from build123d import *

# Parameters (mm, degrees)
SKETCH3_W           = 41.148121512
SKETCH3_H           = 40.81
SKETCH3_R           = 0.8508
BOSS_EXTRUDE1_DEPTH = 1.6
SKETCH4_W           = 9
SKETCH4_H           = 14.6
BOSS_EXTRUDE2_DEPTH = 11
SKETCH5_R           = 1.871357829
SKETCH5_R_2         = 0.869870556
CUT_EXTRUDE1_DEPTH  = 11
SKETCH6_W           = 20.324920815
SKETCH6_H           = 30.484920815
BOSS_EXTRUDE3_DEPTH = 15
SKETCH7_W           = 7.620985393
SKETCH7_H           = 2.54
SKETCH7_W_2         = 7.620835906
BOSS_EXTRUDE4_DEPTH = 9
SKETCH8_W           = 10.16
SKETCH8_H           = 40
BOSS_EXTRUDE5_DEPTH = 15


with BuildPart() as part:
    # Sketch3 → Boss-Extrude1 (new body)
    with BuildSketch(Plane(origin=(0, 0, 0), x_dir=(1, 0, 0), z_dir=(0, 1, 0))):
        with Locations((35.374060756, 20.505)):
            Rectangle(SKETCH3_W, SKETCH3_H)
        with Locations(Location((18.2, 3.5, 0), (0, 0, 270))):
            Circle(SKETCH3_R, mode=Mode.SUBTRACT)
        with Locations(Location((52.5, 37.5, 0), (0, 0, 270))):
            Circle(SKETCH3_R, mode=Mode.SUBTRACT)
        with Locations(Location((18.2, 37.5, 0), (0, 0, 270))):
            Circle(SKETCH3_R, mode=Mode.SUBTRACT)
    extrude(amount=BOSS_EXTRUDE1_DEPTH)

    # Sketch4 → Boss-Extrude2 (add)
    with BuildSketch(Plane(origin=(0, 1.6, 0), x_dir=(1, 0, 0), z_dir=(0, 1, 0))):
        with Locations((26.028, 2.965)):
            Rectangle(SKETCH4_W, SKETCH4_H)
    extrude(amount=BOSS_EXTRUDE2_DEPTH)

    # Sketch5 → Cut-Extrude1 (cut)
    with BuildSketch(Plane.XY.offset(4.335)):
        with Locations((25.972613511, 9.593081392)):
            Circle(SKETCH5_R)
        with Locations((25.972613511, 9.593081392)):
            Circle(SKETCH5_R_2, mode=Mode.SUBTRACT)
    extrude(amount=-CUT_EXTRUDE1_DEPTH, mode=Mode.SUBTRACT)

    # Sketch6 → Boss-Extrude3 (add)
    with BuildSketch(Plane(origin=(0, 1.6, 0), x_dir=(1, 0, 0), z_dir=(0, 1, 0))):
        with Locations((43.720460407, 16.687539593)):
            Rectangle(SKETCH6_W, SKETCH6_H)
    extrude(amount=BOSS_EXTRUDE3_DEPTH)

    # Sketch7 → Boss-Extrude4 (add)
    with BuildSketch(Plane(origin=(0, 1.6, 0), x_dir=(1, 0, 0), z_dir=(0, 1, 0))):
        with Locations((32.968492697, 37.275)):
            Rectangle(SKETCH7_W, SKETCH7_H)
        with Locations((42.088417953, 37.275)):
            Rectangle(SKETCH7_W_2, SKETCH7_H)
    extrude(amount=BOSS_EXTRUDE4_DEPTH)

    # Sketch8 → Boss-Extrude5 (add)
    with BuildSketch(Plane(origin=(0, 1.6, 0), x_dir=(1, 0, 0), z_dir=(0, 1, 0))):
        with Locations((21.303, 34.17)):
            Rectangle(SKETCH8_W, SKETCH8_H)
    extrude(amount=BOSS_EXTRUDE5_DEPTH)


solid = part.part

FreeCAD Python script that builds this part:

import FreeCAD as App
import Part
import Sketcher

doc = App.newDocument("Part")
params = doc.addObject("Spreadsheet::Sheet", "Params")
for row, (alias, value) in enumerate([
    ("sketch1_height", "40.81 mm"),
    ("pad1_length", "1.6 mm"),
    ("sketch2_width", "9 mm"),
    ("sketch2_height", "14.6 mm"),
    ("pad2_length", "11 mm"),
    ("pocket1_length", "11 mm"),
    ("pad3_length", "15 mm"),
    ("sketch5_height", "2.54 mm"),
    ("pad4_length", "9 mm"),
    ("sketch6_height", "40 mm"),
    ("sketch6_width", "10.16 mm"),
    ("pad5_length", "15 mm"),
], start=1):
    params.set(f"A{row}", alias)
    params.set(f"B{row}", "=" + value)
    params.setAlias(f"B{row}", alias)

body = doc.addObject("PartDesign::Body", "Body")

# Sketch on XZ plane
sketch1 = doc.addObject("Sketcher::SketchObject", "Sketch")
body.addObject(sketch1)
sketch1.AttachmentSupport = (doc.XZ_Plane, [""])
sketch1.MapMode = "FlatFace"
sketch1.addGeometry(Part.LineSegment(App.Vector(14.8, -40.9, 0), App.Vector(14.8, -0.1, 0)), False)
sketch1.addGeometry(Part.LineSegment(App.Vector(14.8, -0.1, 0), App.Vector(55.9, -0.1, 0)), False)
sketch1.addGeometry(Part.LineSegment(App.Vector(55.9, -0.1, 0), App.Vector(55.9, -40.9, 0)), False)
sketch1.addGeometry(Part.LineSegment(App.Vector(55.9, -40.9, 0), App.Vector(14.8, -40.9, 0)), False)
sketch1.addGeometry(Part.Circle(App.Vector(18.2, -3.5, 0), App.Vector(0, 0, 1), 0.9), False)
sketch1.addGeometry(Part.Circle(App.Vector(18.2, -37.5, 0), App.Vector(0, 0, 1), 0.9), False)
sketch1.addGeometry(Part.Circle(App.Vector(52.5, -37.5, 0), App.Vector(0, 0, 1), 0.9), False)
sketch1.addConstraint(Sketcher.Constraint("Coincident", 0, 2, 1, 1))
sketch1.addConstraint(Sketcher.Constraint("Coincident", 1, 2, 2, 1))
sketch1.addConstraint(Sketcher.Constraint("Coincident", 2, 2, 3, 1))
sketch1.addConstraint(Sketcher.Constraint("Coincident", 3, 2, 0, 1))
sketch1.addConstraint(Sketcher.Constraint("Vertical", 0))
sketch1.addConstraint(Sketcher.Constraint("Horizontal", 1))
sketch1.addConstraint(Sketcher.Constraint("Vertical", 2))
sketch1.addConstraint(Sketcher.Constraint("Horizontal", 3))
sketch1.addConstraint(Sketcher.Constraint("Equal", 4, 5))
sketch1.addConstraint(Sketcher.Constraint("Equal", 5, 6))
sketch1.addConstraint(Sketcher.Constraint("Horizontal", 5, 3, 6, 3))
sketch1.addConstraint(Sketcher.Constraint("Vertical", 4, 3, 5, 3))
sketch1.addConstraint(Sketcher.Constraint("DistanceY", 5, 3, 4, 3, 34.0))
sketch1.addConstraint(Sketcher.Constraint("Diameter", 4, 1.7016))
sketch1.addConstraint(Sketcher.Constraint("DistanceY", 0, 1, 0, 2, 40.81))
sketch1.addConstraint(Sketcher.Constraint("DistanceX", -1, 1, 4, 3, 18.2))
sketch1.addConstraint(Sketcher.Constraint("DistanceY", 4, 3, -1, 1, 3.5))
sketch1.addConstraint(Sketcher.Constraint("DistanceX", -1, 1, 6, 3, 52.5))
sketch1.addConstraint(Sketcher.Constraint("DistanceX", -1, 1, 0, 2, 14.8))
sketch1.addConstraint(Sketcher.Constraint("DistanceY", 0, 2, -1, 1, 0.1))
sketch1.addConstraint(Sketcher.Constraint("DistanceX", 1, 1, 1, 2, 41.148122))
sketch1.setExpression("Constraints[14]", "Params.sketch1_height")
pad1 = doc.addObject("PartDesign::Pad", "Pad")
body.addObject(pad1)
pad1.Profile = sketch1
pad1.setExpression("Length", "Params.pad1_length")
pad1.Reversed = True

# Sketch on XZ plane
sketch2 = doc.addObject("Sketcher::SketchObject", "Sketch001")
body.addObject(sketch2)
sketch2.AttachmentSupport = (doc.XZ_Plane, [""])
sketch2.MapMode = "FlatFace"
sketch2.AttachmentOffset = App.Placement(App.Vector(0, 0, -1.6), App.Rotation())
sketch2.addGeometry(Part.LineSegment(App.Vector(22, -10, 0), App.Vector(22, 4, 0)), False)
sketch2.addGeometry(Part.LineSegment(App.Vector(22, 4, 0), App.Vector(31, 4, 0)), False)
sketch2.addGeometry(Part.LineSegment(App.Vector(31, 4, 0), App.Vector(31, -10, 0)), False)
sketch2.addGeometry(Part.LineSegment(App.Vector(31, -10, 0), App.Vector(22, -10, 0)), False)
sketch2.addConstraint(Sketcher.Constraint("Coincident", 0, 2, 1, 1))
sketch2.addConstraint(Sketcher.Constraint("Coincident", 1, 2, 2, 1))
sketch2.addConstraint(Sketcher.Constraint("Coincident", 2, 2, 3, 1))
sketch2.addConstraint(Sketcher.Constraint("Coincident", 3, 2, 0, 1))
sketch2.addConstraint(Sketcher.Constraint("Vertical", 0))
sketch2.addConstraint(Sketcher.Constraint("Horizontal", 1))
sketch2.addConstraint(Sketcher.Constraint("Vertical", 2))
sketch2.addConstraint(Sketcher.Constraint("Horizontal", 3))
sketch2.addConstraint(Sketcher.Constraint("DistanceX", 1, 1, 1, 2, 9.0))
sketch2.addConstraint(Sketcher.Constraint("DistanceY", 0, 1, 0, 2, 14.6))
sketch2.addConstraint(Sketcher.Constraint("DistanceX", -1, 1, 0, 2, 21.528))
sketch2.addConstraint(Sketcher.Constraint("DistanceY", -1, 1, 0, 2, 4.335))
sketch2.setExpression("Constraints[8]", "Params.sketch2_width")
sketch2.setExpression("Constraints[9]", "Params.sketch2_height")
pad2 = doc.addObject("PartDesign::Pad", "Pad001")
body.addObject(pad2)
pad2.Profile = sketch2
pad2.setExpression("Length", "Params.pad2_length")
pad2.Reversed = True

# Sketch on XY plane
sketch3 = doc.addObject("Sketcher::SketchObject", "Sketch002")
body.addObject(sketch3)
sketch3.AttachmentSupport = (doc.XY_Plane, [""])
sketch3.MapMode = "FlatFace"
sketch3.AttachmentOffset = App.Placement(App.Vector(0, 0, 4.335), App.Rotation())
sketch3.addGeometry(Part.Circle(App.Vector(26, 9.6, 0), App.Vector(0, 0, 1), 1.9), False)
sketch3.addGeometry(Part.Circle(App.Vector(26, 9.6, 0), App.Vector(0, 0, 1), 0.9), False)
sketch3.addConstraint(Sketcher.Constraint("Coincident", 1, 3, 0, 3))
sketch3.addConstraint(Sketcher.Constraint("Diameter", 1, 1.739741))
sketch3.addConstraint(Sketcher.Constraint("Diameter", 0, 3.742716))
sketch3.addConstraint(Sketcher.Constraint("DistanceY", -1, 1, 0, 3, 9.593081))
sketch3.addConstraint(Sketcher.Constraint("DistanceX", -1, 1, 0, 3, 25.972614))
pocket1 = doc.addObject("PartDesign::Pocket", "Pocket")
body.addObject(pocket1)
pocket1.Profile = sketch3
pocket1.setExpression("Length", "Params.pocket1_length")

# Sketch on XZ plane
sketch4 = doc.addObject("Sketcher::SketchObject", "Sketch003")
body.addObject(sketch4)
sketch4.AttachmentSupport = (doc.XZ_Plane, [""])
sketch4.MapMode = "FlatFace"
sketch4.AttachmentOffset = App.Placement(App.Vector(0, 0, -1.6), App.Rotation())
sketch4.addGeometry(Part.LineSegment(App.Vector(34, -32, 0), App.Vector(34, -1, 0)), False)
sketch4.addGeometry(Part.LineSegment(App.Vector(34, -1, 0), App.Vector(54, -1, 0)), False)
sketch4.addGeometry(Part.LineSegment(App.Vector(54, -1, 0), App.Vector(54, -32, 0)), False)
sketch4.addGeometry(Part.LineSegment(App.Vector(54, -32, 0), App.Vector(34, -32, 0)), False)
sketch4.addConstraint(Sketcher.Constraint("Coincident", 0, 2, 1, 1))
sketch4.addConstraint(Sketcher.Constraint("Coincident", 1, 2, 2, 1))
sketch4.addConstraint(Sketcher.Constraint("Coincident", 2, 2, 3, 1))
sketch4.addConstraint(Sketcher.Constraint("Coincident", 3, 2, 0, 1))
sketch4.addConstraint(Sketcher.Constraint("Vertical", 0))
sketch4.addConstraint(Sketcher.Constraint("Horizontal", 1))
sketch4.addConstraint(Sketcher.Constraint("Vertical", 2))
sketch4.addConstraint(Sketcher.Constraint("Horizontal", 3))
sketch4.addConstraint(Sketcher.Constraint("DistanceY", 2, 2, -1, 1, 31.93))
sketch4.addConstraint(Sketcher.Constraint("DistanceX", -1, 1, 0, 2, 33.558))
sketch4.addConstraint(Sketcher.Constraint("DistanceX", 1, 1, 1, 2, 20.324921))
sketch4.addConstraint(Sketcher.Constraint("DistanceY", 0, 1, 0, 2, 30.484921))
pad3 = doc.addObject("PartDesign::Pad", "Pad002")
body.addObject(pad3)
pad3.Profile = sketch4
pad3.setExpression("Length", "Params.pad3_length")
pad3.Reversed = True

# Sketch on XZ plane
sketch5 = doc.addObject("Sketcher::SketchObject", "Sketch004")
body.addObject(sketch5)
sketch5.AttachmentSupport = (doc.XZ_Plane, [""])
sketch5.MapMode = "FlatFace"
sketch5.AttachmentOffset = App.Placement(App.Vector(0, 0, -1.6), App.Rotation())
sketch5.addGeometry(Part.LineSegment(App.Vector(29.2, -38.5, 0), App.Vector(29.2, -36, 0)), False)
sketch5.addGeometry(Part.LineSegment(App.Vector(29.2, -36, 0), App.Vector(36.8, -36, 0)), False)
sketch5.addGeometry(Part.LineSegment(App.Vector(36.8, -36, 0), App.Vector(36.8, -38.5, 0)), False)
sketch5.addGeometry(Part.LineSegment(App.Vector(36.8, -38.5, 0), App.Vector(29.2, -38.5, 0)), False)
sketch5.addGeometry(Part.LineSegment(App.Vector(38.3, -38.5, 0), App.Vector(38.3, -36, 0)), False)
sketch5.addGeometry(Part.LineSegment(App.Vector(38.3, -36, 0), App.Vector(45.9, -36, 0)), False)
sketch5.addGeometry(Part.LineSegment(App.Vector(45.9, -36, 0), App.Vector(45.9, -38.5, 0)), False)
sketch5.addGeometry(Part.LineSegment(App.Vector(45.9, -38.5, 0), App.Vector(38.3, -38.5, 0)), False)
sketch5.addConstraint(Sketcher.Constraint("Coincident", 0, 2, 1, 1))
sketch5.addConstraint(Sketcher.Constraint("Coincident", 1, 2, 2, 1))
sketch5.addConstraint(Sketcher.Constraint("Coincident", 2, 2, 3, 1))
sketch5.addConstraint(Sketcher.Constraint("Coincident", 3, 2, 0, 1))
sketch5.addConstraint(Sketcher.Constraint("Coincident", 4, 2, 5, 1))
sketch5.addConstraint(Sketcher.Constraint("Coincident", 5, 2, 6, 1))
sketch5.addConstraint(Sketcher.Constraint("Coincident", 6, 2, 7, 1))
sketch5.addConstraint(Sketcher.Constraint("Coincident", 7, 2, 4, 1))
sketch5.addConstraint(Sketcher.Constraint("Vertical", 0))
sketch5.addConstraint(Sketcher.Constraint("Horizontal", 1))
sketch5.addConstraint(Sketcher.Constraint("Vertical", 2))
sketch5.addConstraint(Sketcher.Constraint("Horizontal", 3))
sketch5.addConstraint(Sketcher.Constraint("Vertical", 4))
sketch5.addConstraint(Sketcher.Constraint("Horizontal", 5))
sketch5.addConstraint(Sketcher.Constraint("Vertical", 6))
sketch5.addConstraint(Sketcher.Constraint("Horizontal", 7))
sketch5.addConstraint(Sketcher.Constraint("Horizontal", 1, 2, 4, 2))
sketch5.addConstraint(Sketcher.Constraint("Horizontal", 3, 2, 6, 2))
sketch5.addConstraint(Sketcher.Constraint("DistanceY", 0, 1, 0, 2, 2.54))
sketch5.addConstraint(Sketcher.Constraint("DistanceX", 0, 2, 4, 2, 9.12))
sketch5.addConstraint(Sketcher.Constraint("DistanceX", -1, 1, 0, 2, 29.158))
sketch5.addConstraint(Sketcher.Constraint("DistanceY", 0, 2, -1, 1, 36.005))
sketch5.addConstraint(Sketcher.Constraint("DistanceX", 1, 1, 1, 2, 7.620985))
sketch5.addConstraint(Sketcher.Constraint("DistanceX", 5, 1, 5, 2, 7.620836))
sketch5.setExpression("Constraints[18]", "Params.sketch5_height")
pad4 = doc.addObject("PartDesign::Pad", "Pad003")
body.addObject(pad4)
pad4.Profile = sketch5
pad4.setExpression("Length", "Params.pad4_length")
pad4.Reversed = True

# Sketch on XZ plane
sketch6 = doc.addObject("Sketcher::SketchObject", "Sketch005")
body.addObject(sketch6)
sketch6.AttachmentSupport = (doc.XZ_Plane, [""])
sketch6.MapMode = "FlatFace"
sketch6.AttachmentOffset = App.Placement(App.Vector(0, 0, -1.6), App.Rotation())
sketch6.addGeometry(Part.LineSegment(App.Vector(16, -54, 0), App.Vector(16, -14, 0)), False)
sketch6.addGeometry(Part.LineSegment(App.Vector(16, -14, 0), App.Vector(26, -14, 0)), False)
sketch6.addGeometry(Part.LineSegment(App.Vector(26, -14, 0), App.Vector(26, -54, 0)), False)
sketch6.addGeometry(Part.LineSegment(App.Vector(26, -54, 0), App.Vector(16, -54, 0)), False)
sketch6.addConstraint(Sketcher.Constraint("Coincident", 0, 2, 1, 1))
sketch6.addConstraint(Sketcher.Constraint("Coincident", 1, 2, 2, 1))
sketch6.addConstraint(Sketcher.Constraint("Coincident", 2, 2, 3, 1))
sketch6.addConstraint(Sketcher.Constraint("Coincident", 3, 2, 0, 1))
sketch6.addConstraint(Sketcher.Constraint("Vertical", 0))
sketch6.addConstraint(Sketcher.Constraint("Horizontal", 1))
sketch6.addConstraint(Sketcher.Constraint("Vertical", 2))
sketch6.addConstraint(Sketcher.Constraint("Horizontal", 3))
sketch6.addConstraint(Sketcher.Constraint("DistanceY", 0, 1, 0, 2, 40.0))
sketch6.addConstraint(Sketcher.Constraint("DistanceX", 1, 1, 1, 2, 10.16))
sketch6.addConstraint(Sketcher.Constraint("DistanceY", 0, 2, -1, 1, 14.17))
sketch6.addConstraint(Sketcher.Constraint("DistanceX", -1, 1, 0, 2, 16.223))
sketch6.setExpression("Constraints[8]", "Params.sketch6_height")
sketch6.setExpression("Constraints[9]", "Params.sketch6_width")
pad5 = doc.addObject("PartDesign::Pad", "Pad004")
body.addObject(pad5)
pad5.Profile = sketch6
pad5.setExpression("Length", "Params.pad5_length")
pad5.Reversed = True

doc.recompute()
